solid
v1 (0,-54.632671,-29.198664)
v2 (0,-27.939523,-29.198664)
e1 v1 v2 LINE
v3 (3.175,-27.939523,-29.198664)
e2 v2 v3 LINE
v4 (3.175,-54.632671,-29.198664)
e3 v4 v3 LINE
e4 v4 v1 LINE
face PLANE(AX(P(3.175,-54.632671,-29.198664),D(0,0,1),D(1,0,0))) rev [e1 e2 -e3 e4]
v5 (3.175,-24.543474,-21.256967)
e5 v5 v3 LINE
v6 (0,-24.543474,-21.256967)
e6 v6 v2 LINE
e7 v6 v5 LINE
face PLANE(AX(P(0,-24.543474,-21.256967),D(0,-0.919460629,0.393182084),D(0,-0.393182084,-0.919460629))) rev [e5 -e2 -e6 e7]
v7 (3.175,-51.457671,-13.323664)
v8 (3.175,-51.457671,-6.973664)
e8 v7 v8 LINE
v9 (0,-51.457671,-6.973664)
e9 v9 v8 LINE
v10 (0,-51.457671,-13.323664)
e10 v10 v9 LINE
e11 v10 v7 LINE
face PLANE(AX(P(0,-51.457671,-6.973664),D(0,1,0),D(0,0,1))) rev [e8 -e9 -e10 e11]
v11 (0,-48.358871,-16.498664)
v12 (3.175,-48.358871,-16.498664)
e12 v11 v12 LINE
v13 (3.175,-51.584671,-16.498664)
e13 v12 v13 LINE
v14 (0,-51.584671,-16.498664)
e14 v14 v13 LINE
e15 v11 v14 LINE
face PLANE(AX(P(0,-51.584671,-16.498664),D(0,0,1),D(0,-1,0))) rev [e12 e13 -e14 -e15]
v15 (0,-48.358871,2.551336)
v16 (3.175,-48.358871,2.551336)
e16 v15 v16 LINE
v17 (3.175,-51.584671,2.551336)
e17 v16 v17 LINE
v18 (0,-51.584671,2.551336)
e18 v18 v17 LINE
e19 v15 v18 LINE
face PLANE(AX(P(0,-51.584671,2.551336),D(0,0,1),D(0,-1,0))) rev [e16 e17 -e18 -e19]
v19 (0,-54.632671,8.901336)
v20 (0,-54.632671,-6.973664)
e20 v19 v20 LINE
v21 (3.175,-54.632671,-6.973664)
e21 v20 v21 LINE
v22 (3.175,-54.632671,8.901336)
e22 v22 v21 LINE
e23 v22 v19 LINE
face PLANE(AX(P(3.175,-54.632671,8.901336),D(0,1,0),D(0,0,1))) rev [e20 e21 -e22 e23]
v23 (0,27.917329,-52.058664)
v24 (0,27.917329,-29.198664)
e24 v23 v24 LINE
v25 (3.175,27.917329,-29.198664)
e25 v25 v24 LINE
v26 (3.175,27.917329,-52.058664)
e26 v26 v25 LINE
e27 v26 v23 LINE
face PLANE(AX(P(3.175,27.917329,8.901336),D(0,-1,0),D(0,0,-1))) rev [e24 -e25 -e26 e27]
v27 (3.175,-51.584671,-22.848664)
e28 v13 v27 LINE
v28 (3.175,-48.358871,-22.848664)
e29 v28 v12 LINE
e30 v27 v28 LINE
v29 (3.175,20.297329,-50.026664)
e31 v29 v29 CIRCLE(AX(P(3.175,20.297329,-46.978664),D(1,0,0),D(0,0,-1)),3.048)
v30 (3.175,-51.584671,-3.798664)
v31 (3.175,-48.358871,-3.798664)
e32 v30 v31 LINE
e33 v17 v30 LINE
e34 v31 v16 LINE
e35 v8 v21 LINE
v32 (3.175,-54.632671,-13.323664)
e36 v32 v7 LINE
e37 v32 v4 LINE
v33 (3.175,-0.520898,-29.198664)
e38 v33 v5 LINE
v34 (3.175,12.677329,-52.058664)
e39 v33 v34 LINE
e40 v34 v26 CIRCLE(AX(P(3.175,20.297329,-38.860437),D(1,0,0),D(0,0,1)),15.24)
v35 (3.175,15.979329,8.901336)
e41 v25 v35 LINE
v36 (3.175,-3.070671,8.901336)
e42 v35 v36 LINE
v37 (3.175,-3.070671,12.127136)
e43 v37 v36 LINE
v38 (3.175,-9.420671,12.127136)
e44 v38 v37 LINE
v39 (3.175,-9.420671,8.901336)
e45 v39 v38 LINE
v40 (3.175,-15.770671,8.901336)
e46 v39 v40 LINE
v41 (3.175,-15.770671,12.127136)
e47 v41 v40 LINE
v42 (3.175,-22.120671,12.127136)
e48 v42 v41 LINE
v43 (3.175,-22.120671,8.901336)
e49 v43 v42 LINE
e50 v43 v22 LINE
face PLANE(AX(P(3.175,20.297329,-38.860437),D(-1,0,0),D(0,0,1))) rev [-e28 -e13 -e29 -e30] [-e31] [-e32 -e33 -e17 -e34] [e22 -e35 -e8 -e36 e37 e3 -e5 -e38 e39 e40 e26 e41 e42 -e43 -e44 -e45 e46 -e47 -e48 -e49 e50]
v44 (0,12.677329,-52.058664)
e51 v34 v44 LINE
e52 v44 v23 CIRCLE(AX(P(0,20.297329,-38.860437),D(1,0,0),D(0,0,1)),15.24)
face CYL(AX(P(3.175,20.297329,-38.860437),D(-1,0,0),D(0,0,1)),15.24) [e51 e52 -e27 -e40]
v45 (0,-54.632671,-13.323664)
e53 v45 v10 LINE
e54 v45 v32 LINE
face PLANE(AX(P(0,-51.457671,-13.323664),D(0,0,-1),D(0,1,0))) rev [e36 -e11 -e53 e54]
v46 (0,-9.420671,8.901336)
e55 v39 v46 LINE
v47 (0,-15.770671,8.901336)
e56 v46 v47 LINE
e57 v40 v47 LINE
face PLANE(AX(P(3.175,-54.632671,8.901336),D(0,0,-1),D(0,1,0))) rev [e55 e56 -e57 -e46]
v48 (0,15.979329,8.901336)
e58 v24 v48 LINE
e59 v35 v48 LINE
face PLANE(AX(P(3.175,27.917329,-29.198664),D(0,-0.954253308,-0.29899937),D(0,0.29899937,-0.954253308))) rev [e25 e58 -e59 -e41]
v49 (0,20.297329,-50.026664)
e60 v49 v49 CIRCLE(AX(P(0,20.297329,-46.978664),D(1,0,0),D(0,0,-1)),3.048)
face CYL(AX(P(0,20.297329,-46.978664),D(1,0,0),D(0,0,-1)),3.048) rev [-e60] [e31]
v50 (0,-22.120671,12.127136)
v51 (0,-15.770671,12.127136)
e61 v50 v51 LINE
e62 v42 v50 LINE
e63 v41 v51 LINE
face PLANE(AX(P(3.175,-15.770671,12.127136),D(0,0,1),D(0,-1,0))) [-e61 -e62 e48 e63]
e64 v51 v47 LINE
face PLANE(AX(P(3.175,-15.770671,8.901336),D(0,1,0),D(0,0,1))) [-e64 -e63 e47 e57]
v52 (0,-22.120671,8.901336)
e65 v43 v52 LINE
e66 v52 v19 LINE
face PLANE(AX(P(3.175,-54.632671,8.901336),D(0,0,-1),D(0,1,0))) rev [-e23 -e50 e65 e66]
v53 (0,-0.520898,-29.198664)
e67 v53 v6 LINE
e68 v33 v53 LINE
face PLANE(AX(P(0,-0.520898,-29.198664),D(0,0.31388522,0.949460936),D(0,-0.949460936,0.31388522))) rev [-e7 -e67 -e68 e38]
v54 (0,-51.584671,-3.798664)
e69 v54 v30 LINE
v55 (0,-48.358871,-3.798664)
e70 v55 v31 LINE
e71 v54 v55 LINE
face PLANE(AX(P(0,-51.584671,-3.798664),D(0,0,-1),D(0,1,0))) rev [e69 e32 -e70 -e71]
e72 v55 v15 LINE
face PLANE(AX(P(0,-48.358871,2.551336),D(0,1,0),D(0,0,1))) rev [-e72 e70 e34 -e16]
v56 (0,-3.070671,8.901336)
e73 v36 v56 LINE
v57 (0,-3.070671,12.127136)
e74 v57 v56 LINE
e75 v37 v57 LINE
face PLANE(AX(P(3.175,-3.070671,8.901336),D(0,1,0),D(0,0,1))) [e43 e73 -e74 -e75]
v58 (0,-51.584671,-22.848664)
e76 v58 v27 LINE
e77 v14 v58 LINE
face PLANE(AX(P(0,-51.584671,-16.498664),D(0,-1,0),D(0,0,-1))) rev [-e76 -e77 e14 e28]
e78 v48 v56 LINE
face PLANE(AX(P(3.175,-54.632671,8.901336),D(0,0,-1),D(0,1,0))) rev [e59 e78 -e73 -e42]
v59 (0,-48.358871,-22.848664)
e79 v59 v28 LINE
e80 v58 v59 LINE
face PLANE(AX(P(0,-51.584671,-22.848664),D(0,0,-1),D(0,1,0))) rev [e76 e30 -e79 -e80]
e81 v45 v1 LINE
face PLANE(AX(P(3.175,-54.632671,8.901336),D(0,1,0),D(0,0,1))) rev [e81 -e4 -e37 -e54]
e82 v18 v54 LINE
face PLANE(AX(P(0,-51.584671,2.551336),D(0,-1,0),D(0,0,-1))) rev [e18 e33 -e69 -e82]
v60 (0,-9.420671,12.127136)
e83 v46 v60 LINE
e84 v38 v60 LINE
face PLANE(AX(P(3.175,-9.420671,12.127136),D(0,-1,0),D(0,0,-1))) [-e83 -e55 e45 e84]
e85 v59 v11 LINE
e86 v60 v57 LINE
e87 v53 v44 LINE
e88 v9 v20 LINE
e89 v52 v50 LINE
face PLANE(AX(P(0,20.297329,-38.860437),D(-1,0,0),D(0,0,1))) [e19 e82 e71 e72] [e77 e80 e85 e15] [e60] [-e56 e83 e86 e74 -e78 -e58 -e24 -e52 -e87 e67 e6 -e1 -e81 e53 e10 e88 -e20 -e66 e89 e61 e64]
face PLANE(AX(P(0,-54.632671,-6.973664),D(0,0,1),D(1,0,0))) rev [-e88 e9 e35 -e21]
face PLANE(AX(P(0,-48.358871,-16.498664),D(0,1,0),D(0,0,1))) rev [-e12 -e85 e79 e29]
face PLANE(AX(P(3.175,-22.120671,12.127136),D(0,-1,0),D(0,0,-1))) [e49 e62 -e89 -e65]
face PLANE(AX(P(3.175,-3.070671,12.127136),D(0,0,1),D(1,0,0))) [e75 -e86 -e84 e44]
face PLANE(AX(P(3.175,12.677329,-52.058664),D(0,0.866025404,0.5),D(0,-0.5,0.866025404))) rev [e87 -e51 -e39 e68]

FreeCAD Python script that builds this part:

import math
import FreeCAD as App
import Part
import Sketcher

V = App.Vector
Q = App.Units.Quantity

doc = App.newDocument("Part")
body = doc.addObject("PartDesign::Body", "Body")

sketch1 = doc.addObject("Sketcher::SketchObject", "Sketch")
body.addObject(sketch1)
sketch1.AttachmentSupport = (doc.YZ_Plane, [""])
sketch1.MapMode = "FlatFace"
sketch1.addGeometry(Part.LineSegment(V(28, -52, 0), V(28, 9, 0)), False)
sketch1.addGeometry(Part.LineSegment(V(28, 9, 0), V(-55, 9, 0)), False)
sketch1.addGeometry(Part.LineSegment(V(-55, 9, 0), V(-55, -29, 0)), False)
sketch1.addGeometry(Part.LineSegment(V(-55, -29, 0), V(-1, -29, 0)), False)
sketch1.addGeometry(Part.LineSegment(V(-1, -29, 0), V(13, -52, 0)), False)
sketch1.addGeometry(Part.ArcOfCircle(Part.Circle(V(20, -39, 0), V(0, 0, 1), 15), math.radians(-120), math.radians(-60)), False)
sketch1.addConstraint(Sketcher.Constraint("Coincident", 0, 2, 1, 1))
sketch1.addConstraint(Sketcher.Constraint("Coincident", 1, 2, 2, 1))
sketch1.addConstraint(Sketcher.Constraint("Coincident", 2, 2, 3, 1))
sketch1.addConstraint(Sketcher.Constraint("Coincident", 3, 2, 4, 1))
sketch1.addConstraint(Sketcher.Constraint("Coincident", 4, 2, 5, 1))
sketch1.addConstraint(Sketcher.Constraint("Coincident", 5, 2, 0, 1))
sketch1.addConstraint(Sketcher.Constraint("Vertical", 0))
sketch1.addConstraint(Sketcher.Constraint("Horizontal", 1))
sketch1.addConstraint(Sketcher.Constraint("Vertical", 2))
sketch1.addConstraint(Sketcher.Constraint("Horizontal", 3))
sketch1.addConstraint(Sketcher.Constraint("Horizontal", 4, 2, 5, 2))
sketch1.addConstraint(Sketcher.Constraint("Radius", 5, Q("0.6 in")))
sketch1.addConstraint(Sketcher.Constraint("DistanceY", 0, 1, 0, 2, Q("2.4 in")))
sketch1.addConstraint(Sketcher.Constraint("DistanceY", 2, 2, 2, 1, Q("1.5 in")))
sketch1.addConstraint(Sketcher.Constraint("Angle", 4, Q("-60 deg")))
sketch1.addConstraint(Sketcher.Constraint("DistanceX", 1, 2, 1, 1, Q("3.25 in")))
sketch1.addConstraint(Sketcher.Constraint("DistanceX", 5, 3, 0, 2, Q("0.3 in")))
sketch1.addConstraint(Sketcher.Constraint("DistanceX", 3, 2, -1, 1, 0.520898))
sketch1.addConstraint(Sketcher.Constraint("DistanceY", 5, 3, -1, 1, 38.860437))
pad1 = doc.addObject("PartDesign::Pad", "Pad")
body.addObject(pad1)
pad1.Profile = sketch1
pad1.Length = Q("0.125 in")

sketch2 = doc.addObject("Sketcher::SketchObject", "Sketch001")
body.addObject(sketch2)
sketch2.AttachmentSupport = (doc.YZ_Plane, [""])
sketch2.MapMode = "FlatFace"
sketch2.AttachmentOffset = App.Placement(V(0, 0, 0.125 * 25.4), App.Rotation())
sketch2.addGeometry(Part.Circle(V(20.3, -47, 0), V(0, 0, 1), 3), False)
sketch2.addConstraint(Sketcher.Constraint("Diameter", 0, Q("0.24 in")))
sketch2.addConstraint(Sketcher.Constraint("DistanceX", -1, 1, 0, 3, 20.297329))
sketch2.addConstraint(Sketcher.Constraint("DistanceY", 0, 3, -1, 1, 46.978664))
pocket1 = doc.addObject("PartDesign::Pocket", "Pocket")
body.addObject(pocket1)
pocket1.Profile = sketch2
pocket1.Type = "ThroughAll"

sketch3 = doc.addObject("Sketcher::SketchObject", "Sketch002")
body.addObject(sketch3)
sketch3.AttachmentSupport = (doc.YZ_Plane, [""])
sketch3.MapMode = "FlatFace"
sketch3.AttachmentOffset = App.Placement(V(0, 0, 0.125 * 25.4), App.Rotation())
sketch3.addGeometry(Part.LineSegment(V(-48.4, 2.6, 0), V(-51.6, 2.6, 0)), False)
sketch3.addGeometry(Part.LineSegment(V(-51.6, 2.6, 0), V(-51.6, -3.8, 0)), False)
sketch3.addGeometry(Part.LineSegment(V(-51.6, -3.8, 0), V(-48.4, -3.8, 0)), False)
sketch3.addGeometry(Part.LineSegment(V(-48.4, -3.8, 0), V(-48.4, 2.6, 0)), False)
sketch3.addGeometry(Part.LineSegment(V(-48.4, -16.5, 0), V(-51.6, -16.5, 0)), False)
sketch3.addGeometry(Part.LineSegment(V(-51.6, -16.5, 0), V(-51.6, -22.8, 0)), False)
sketch3.addGeometry(Part.LineSegment(V(-51.6, -22.8, 0), V(-48.4, -22.8, 0)), False)
sketch3.addGeometry(Part.LineSegment(V(-48.4, -22.8, 0), V(-48.4, -16.5, 0)), False)
sketch3.addGeometry(Part.LineSegment(V(-54.6, -7, 0), V(-54.6, -13.3, 0)), False)
sketch3.addGeometry(Part.LineSegment(V(-54.6, -13.3, 0), V(-51.5, -13.3, 0)), False)
sketch3.addGeometry(Part.LineSegment(V(-51.5, -13.3, 0), V(-51.5, -7, 0)), False)
sketch3.addGeometry(Part.LineSegment(V(-51.5, -7, 0), V(-54.6, -7, 0)), False)
sketch3.addConstraint(Sketcher.Constraint("Coincident", 0, 2, 1, 1))
sketch3.addConstraint(Sketcher.Constraint("Coincident", 1, 2, 2, 1))
sketch3.addConstraint(Sketcher.Constraint("Coincident", 2, 2, 3, 1))
sketch3.addConstraint(Sketcher.Constraint("Coincident", 3, 2, 0, 1))
sketch3.addConstraint(Sketcher.Constraint("Coincident", 4, 2, 5, 1))
sketch3.addConstraint(Sketcher.Constraint("Coincident", 5, 2, 6, 1))
sketch3.addConstraint(Sketcher.Constraint("Coincident", 6, 2, 7, 1))
sketch3.addConstraint(Sketcher.Constraint("Coincident", 7, 2, 4, 1))
sketch3.addConstraint(Sketcher.Constraint("Coincident", 8, 2, 9, 1))
sketch3.addConstraint(Sketcher.Constraint("Coincident", 9, 2, 10, 1))
sketch3.addConstraint(Sketcher.Constraint("Coincident", 10, 2, 11, 1))
sketch3.addConstraint(Sketcher.Constraint("Coincident", 11, 2, 8, 1))
sketch3.addConstraint(Sketcher.Constraint("Horizontal", 0))
sketch3.addConstraint(Sketcher.Constraint("Vertical", 1))
sketch3.addConstraint(Sketcher.Constraint("Horizontal", 2))
sketch3.addConstraint(Sketcher.Constraint("Vertical", 3))
sketch3.addConstraint(Sketcher.Constraint("Horizontal", 4))
sketch3.addConstraint(Sketcher.Constraint("Vertical", 5))
sketch3.addConstraint(Sketcher.Constraint("Horizontal", 6))
sketch3.addConstraint(Sketcher.Constraint("Vertical", 7))
sketch3.addConstraint(Sketcher.Constraint("Vertical", 8))
sketch3.addConstraint(Sketcher.Constraint("Horizontal", 9))
sketch3.addConstraint(Sketcher.Constraint("Vertical", 10))
sketch3.addConstraint(Sketcher.Constraint("Horizontal", 11))
sketch3.addConstraint(Sketcher.Constraint("Vertical", 1, 2, 4, 2))
sketch3.addConstraint(Sketcher.Constraint("Vertical", 3, 2, 6, 2))
sketch3.addConstraint(Sketcher.Constraint("Equal", 3, 5))
sketch3.addConstraint(Sketcher.Constraint("Equal", 7, 8))
sketch3.addConstraint(Sketcher.Constraint("DistanceY", 5, 2, 0, 2, Q("1 in")))
sketch3.addConstraint(Sketcher.Constraint("DistanceY", 1, 2, 1, 1, Q("0.25 in")))
sketch3.addConstraint(Sketcher.Constraint("DistanceX", 0, 2, 0, 1, Q("0.127 in")))
sketch3.addConstraint(Sketcher.Constraint("DistanceX", 9, 1, 9, 2, Q("0.125 in")))
sketch3.addConstraint(Sketcher.Constraint("DistanceX", 8, 2, 4, 2, Q("0.12 in")))
sketch3.addConstraint(Sketcher.Constraint("DistanceY", 4, 2, 8, 2, Q("0.125 in")))
sketch3.addConstraint(Sketcher.Constraint("DistanceX", 0, 2, -1, 1, 51.584671))
sketch3.addConstraint(Sketcher.Constraint("DistanceY", -1, 1, 0, 2, 2.551336))
pocket2 = doc.addObject("PartDesign::Pocket", "Pocket001")
body.addObject(pocket2)
pocket2.Profile = sketch3
pocket2.Type = "ThroughAll"

sketch4 = doc.addObject("Sketcher::SketchObject", "Sketch003")
body.addObject(sketch4)
sketch4.AttachmentSupport = (doc.YZ_Plane, [""])
sketch4.MapMode = "FlatFace"
sketch4.AttachmentOffset = App.Placement(V(0, 0, 0.125 * 25.4), App.Rotation())
sketch4.addGeometry(Part.LineSegment(V(-1, -29, 0), V(-25, -21, 0)), False)
sketch4.addGeometry(Part.LineSegment(V(-25, -21, 0), V(-28, -29, 0)), False)
sketch4.addGeometry(Part.LineSegment(V(-28, -29, 0), V(-1, -29, 0)), False)
sketch4.addConstraint(Sketcher.Constraint("Coincident", 0, 2, 1, 1))
sketch4.addConstraint(Sketcher.Constraint("Coincident", 1, 2, 2, 1))
sketch4.addConstraint(Sketcher.Constraint("Coincident", 2, 2, 0, 1))
sketch4.addConstraint(Sketcher.Constraint("Horizontal", 2))
sketch4.addConstraint(Sketcher.Constraint("DistanceX", 2, 2, -1, 1, 0.520898))
sketch4.addConstraint(Sketcher.Constraint("Distance", 0, 25.301279))
sketch4.addConstraint(Sketcher.Constraint("DistanceX", 2, 1, 2, 2, 27.418625))
sketch4.addConstraint(Sketcher.Constraint("DistanceX", 1, 2, 0, 2, 3.396049))
sketch4.addConstraint(Sketcher.Constraint("DistanceY", 0, 2, -1, 1, 21.256967))
pocket3 = doc.addObject("PartDesign::Pocket", "Pocket002")
body.addObject(pocket3)
pocket3.Profile = sketch4
pocket3.Type = "ThroughAll"

sketch5 = doc.addObject("Sketcher::SketchObject", "Sketch004")
body.addObject(sketch5)
sketch5.AttachmentSupport = (doc.YZ_Plane, [""])
sketch5.MapMode = "FlatFace"
sketch5.addGeometry(Part.LineSegment(V(28, 9, 0), V(28, -29, 0)), False)
sketch5.addGeometry(Part.LineSegment(V(28, -29, 0), V(16, 9, 0)), False)
sketch5.addGeometry(Part.LineSegment(V(16, 9, 0), V(28, 9, 0)), False)
sketch5.addConstraint(Sketcher.Constraint("Coincident", 0, 2, 1, 1))
sketch5.addConstraint(Sketcher.Constraint("Coincident", 1, 2, 2, 1))
sketch5.addConstraint(Sketcher.Constraint("Coincident", 2, 2, 0, 1))
sketch5.addConstraint(Sketcher.Constraint("Vertical", 0))
sketch5.addConstraint(Sketcher.Constraint("Horizontal", 2))
sketch5.addConstraint(Sketcher.Constraint("DistanceY", 0, 2, 0, 1, Q("1.5 in")))
sketch5.addConstraint(Sketcher.Constraint("DistanceX", 2, 1, 2, 2, Q("0.47 in")))
sketch5.addConstraint(Sketcher.Constraint("DistanceX", -1, 1, 0, 2, 27.917329))
sketch5.addConstraint(Sketcher.Constraint("DistanceY", 0, 2, -1, 1, 29.198664))
pocket4 = doc.addObject("PartDesign::Pocket", "Pocket003")
body.addObject(pocket4)
pocket4.Profile = sketch5
pocket4.Type = "ThroughAll"
pocket4.Reversed = True

sketch6 = doc.addObject("Sketcher::SketchObject", "Sketch005")
body.addObject(sketch6)
sketch6.AttachmentSupport = (doc.YZ_Plane, [""])
sketch6.MapMode = "FlatFace"
sketch6.addGeometry(Part.LineSegment(V(-3.1, 8.9, 0), V(-9.4, 8.9, 0)), False)
sketch6.addGeometry(Part.LineSegment(V(-9.4, 8.9, 0), V(-9.4, 12.1, 0)), False)
sketch6.addGeometry(Part.LineSegment(V(-9.4, 12.1, 0), V(-3.1, 12.1, 0)), False)
sketch6.addGeometry(Part.LineSegment(V(-3.1, 12.1, 0), V(-3.1, 8.9, 0)), False)
sketch6.addGeometry(Part.LineSegment(V(-15.8, 8.9, 0), V(-22.1, 8.9, 0)), False)
sketch6.addGeometry(Part.LineSegment(V(-22.1, 8.9, 0), V(-22.1, 12.1, 0)), False)
sketch6.addGeometry(Part.LineSegment(V(-22.1, 12.1, 0), V(-15.8, 12.1, 0)), False)
sketch6.addGeometry(Part.LineSegment(V(-15.8, 12.1, 0), V(-15.8, 8.9, 0)), False)
sketch6.addConstraint(Sketcher.Constraint("Coincident", 0, 2, 1, 1))
sketch6.addConstraint(Sketcher.Constraint("Coincident", 1, 2, 2, 1))
sketch6.addConstraint(Sketcher.Constraint("Coincident", 2, 2, 3, 1))
sketch6.addConstraint(Sketcher.Constraint("Coincident", 3, 2, 0, 1))
sketch6.addConstraint(Sketcher.Constraint("Coincident", 4, 2, 5, 1))
sketch6.addConstraint(Sketcher.Constraint("Coincident", 5, 2, 6, 1))
sketch6.addConstraint(Sketcher.Constraint("Coincident", 6, 2, 7, 1))
sketch6.addConstraint(Sketcher.Constraint("Coincident", 7, 2, 4, 1))
sketch6.addConstraint(Sketcher.Constraint("Horizontal", 0))
sketch6.addConstraint(Sketcher.Constraint("Vertical", 1))
sketch6.addConstraint(Sketcher.Constraint("Horizontal", 2))
sketch6.addConstraint(Sketcher.Constraint("Vertical", 3))
sketch6.addConstraint(Sketcher.Constraint("Horizontal", 4))
sketch6.addConstraint(Sketcher.Constraint("Vertical", 5))
sketch6.addConstraint(Sketcher.Constraint("Horizontal", 6))
sketch6.addConstraint(Sketcher.Constraint("Vertical", 7))
sketch6.addConstraint(Sketcher.Constraint("Horizontal", 3, 2, 4, 2))
sketch6.addConstraint(Sketcher.Constraint("Horizontal", 2, 2, 5, 2))
sketch6.addConstraint(Sketcher.Constraint("Equal", 2, 4))
sketch6.addConstraint(Sketcher.Constraint("DistanceX", 0, 2, 0, 1, Q("0.25 in")))
sketch6.addConstraint(Sketcher.Constraint("DistanceX", 4, 2, 0, 2, Q("0.5 in")))
sketch6.addConstraint(Sketcher.Constraint("DistanceY", 1, 1, 1, 2, Q("0.127 in")))
sketch6.addConstraint(Sketcher.Constraint("DistanceX", 0, 2, -1, 1, 9.420671))
sketch6.addConstraint(Sketcher.Constraint("DistanceY", -1, 1, 0, 2, 8.901336))
pad2 = doc.addObject("PartDesign::Pad", "Pad001")
body.addObject(pad2)
pad2.Profile = sketch6
pad2.Length = Q("0.125 in")

doc.recompute()
